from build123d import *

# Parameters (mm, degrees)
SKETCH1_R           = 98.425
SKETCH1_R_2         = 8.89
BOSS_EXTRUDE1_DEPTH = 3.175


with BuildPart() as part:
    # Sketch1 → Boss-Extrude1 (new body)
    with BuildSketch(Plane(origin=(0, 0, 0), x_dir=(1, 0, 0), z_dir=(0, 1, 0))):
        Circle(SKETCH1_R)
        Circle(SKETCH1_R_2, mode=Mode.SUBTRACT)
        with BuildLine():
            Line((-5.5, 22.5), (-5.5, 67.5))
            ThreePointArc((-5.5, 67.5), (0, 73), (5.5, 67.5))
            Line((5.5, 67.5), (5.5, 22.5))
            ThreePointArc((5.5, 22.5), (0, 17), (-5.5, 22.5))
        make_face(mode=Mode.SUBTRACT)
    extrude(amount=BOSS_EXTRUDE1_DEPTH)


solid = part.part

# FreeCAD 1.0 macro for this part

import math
import FreeCAD as App
import Part
import Sketcher

V = App.Vector
Q = App.Units.Quantity

doc = App.newDocument("Part")
params = doc.addObject("Spreadsheet::Sheet", "Params")
for row, (alias, value) in enumerate([
    ("sketch1_diameter", "0.7 in"),
    ("sketch1_diameter2", "7.75 in"),
    ("pad1_length", "0.125 in"),
], start=1):
    params.set(f"A{row}", alias)
    params.set(f"B{row}", "=" + value)
    params.setAlias(f"B{row}", alias)

body = doc.addObject("PartDesign::Body", "Body")

# Sketch on XZ plane
sketch1 = body.newObject("Sketcher::SketchObject", "Sketch")
sketch1.AttachmentSupport = (doc.getObject("XZ_Plane"), [""])
sketch1.MapMode = "FlatFace"
sketch1.addGeometry(Part.Circle(V(0, 0, 0), V(0, 0, 1), 98), False)
sketch1.addGeometry(Part.Circle(V(0, 0, 0), V(0, 0, 1), 9), False)
sketch1.addGeometry(Part.ArcOfCircle(Part.Circle(V(0, -22, 0), V(0, 0, 1), 6), math.radians(0), math.radians(180)), False)
sketch1.addGeometry(Part.LineSegment(V(-6, -22, 0), V(-6, -68, 0)), False)
sketch1.addGeometry(Part.ArcOfCircle(Part.Circle(V(0, -68, 0), V(0, 0, 1), 6), math.radians(180), math.radians(360)), False)
sketch1.addGeometry(Part.LineSegment(V(6, -68, 0), V(6, -22, 0)), False)
sketch1.addConstraint(Sketcher.Constraint("Tangent", 2, 2, 3, 1))
sketch1.addConstraint(Sketcher.Constraint("Tangent", 3, 2, 4, 1))
sketch1.addConstraint(Sketcher.Constraint("Tangent", 4, 2, 5, 1))
sketch1.addConstraint(Sketcher.Constraint("Tangent", 5, 2, 2, 1))
sketch1.addConstraint(Sketcher.Constraint("Vertical", 3))
sketch1.addConstraint(Sketcher.Constraint("Vertical", 5))
sketch1.addConstraint(Sketcher.Constraint("Coincident", 0, 3, -1, 1))
sketch1.addConstraint(Sketcher.Constraint("Coincident", 1, 3, -1, 1))
sketch1.addConstraint(Sketcher.Constraint("PointOnObject", 2, 3, -2))
sketch1.addConstraint(Sketcher.Constraint("Diameter", 1, Q("0.7 in")))
sketch1.addConstraint(Sketcher.Constraint("Diameter", 0, Q("7.75 in")))
sketch1.addConstraint(Sketcher.Constraint("Radius", 2, 5.5))
sketch1.addConstraint(Sketcher.Constraint("DistanceY", 3, 2, 3, 1, 45.0))
sketch1.addConstraint(Sketcher.Constraint("DistanceY", 2, 3, -1, 1, 22.5))
sketch1.setExpression("Constraints[9]", "Params.sketch1_diameter")
sketch1.setExpression("Constraints[10]", "Params.sketch1_diameter2")
pad1 = body.newObject("PartDesign::Pad", "Pad")
pad1.Profile = sketch1
pad1.setExpression("Length", "Params.pad1_length")
pad1.Reversed = True

doc.recompute()
